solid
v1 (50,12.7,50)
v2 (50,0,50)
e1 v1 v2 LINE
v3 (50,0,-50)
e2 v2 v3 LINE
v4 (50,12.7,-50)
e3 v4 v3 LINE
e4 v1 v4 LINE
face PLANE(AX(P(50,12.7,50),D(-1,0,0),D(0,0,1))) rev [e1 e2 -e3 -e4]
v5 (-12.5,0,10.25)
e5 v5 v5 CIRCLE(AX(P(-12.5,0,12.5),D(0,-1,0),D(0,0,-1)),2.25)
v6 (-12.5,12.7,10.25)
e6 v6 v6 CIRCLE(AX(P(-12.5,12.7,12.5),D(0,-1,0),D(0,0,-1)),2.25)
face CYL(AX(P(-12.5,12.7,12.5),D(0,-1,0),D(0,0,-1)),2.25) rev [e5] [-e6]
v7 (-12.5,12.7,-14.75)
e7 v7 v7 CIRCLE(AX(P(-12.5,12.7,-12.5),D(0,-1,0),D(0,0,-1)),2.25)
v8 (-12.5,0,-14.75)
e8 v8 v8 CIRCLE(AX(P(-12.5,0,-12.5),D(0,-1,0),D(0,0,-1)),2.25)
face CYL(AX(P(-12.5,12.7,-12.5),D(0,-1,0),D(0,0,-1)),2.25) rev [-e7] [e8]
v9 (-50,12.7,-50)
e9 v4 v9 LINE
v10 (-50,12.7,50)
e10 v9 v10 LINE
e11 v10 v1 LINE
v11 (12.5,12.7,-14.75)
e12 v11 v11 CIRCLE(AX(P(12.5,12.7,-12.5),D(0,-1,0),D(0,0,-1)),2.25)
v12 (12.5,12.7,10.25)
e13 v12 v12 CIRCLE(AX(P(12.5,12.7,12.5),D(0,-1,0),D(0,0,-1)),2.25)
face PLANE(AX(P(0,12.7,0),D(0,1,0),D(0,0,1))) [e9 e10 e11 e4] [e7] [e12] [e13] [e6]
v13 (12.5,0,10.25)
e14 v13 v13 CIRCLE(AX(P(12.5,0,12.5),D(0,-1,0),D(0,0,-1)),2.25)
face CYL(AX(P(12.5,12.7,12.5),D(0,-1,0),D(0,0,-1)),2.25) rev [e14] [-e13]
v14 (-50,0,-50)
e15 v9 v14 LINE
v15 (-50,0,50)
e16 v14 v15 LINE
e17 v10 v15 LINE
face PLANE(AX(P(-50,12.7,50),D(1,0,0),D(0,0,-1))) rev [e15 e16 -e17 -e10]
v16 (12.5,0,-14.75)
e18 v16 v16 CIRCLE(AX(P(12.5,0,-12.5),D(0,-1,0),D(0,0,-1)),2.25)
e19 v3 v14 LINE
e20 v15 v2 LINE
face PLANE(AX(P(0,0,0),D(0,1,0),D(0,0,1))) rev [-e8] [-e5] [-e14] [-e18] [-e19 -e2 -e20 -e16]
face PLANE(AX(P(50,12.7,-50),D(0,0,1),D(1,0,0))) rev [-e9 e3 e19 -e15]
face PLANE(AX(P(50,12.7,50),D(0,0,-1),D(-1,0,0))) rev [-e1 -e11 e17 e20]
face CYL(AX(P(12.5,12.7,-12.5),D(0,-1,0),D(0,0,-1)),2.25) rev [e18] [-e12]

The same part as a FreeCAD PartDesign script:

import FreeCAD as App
import Part
import Sketcher

V = App.Vector
Q = App.Units.Quantity

doc = App.newDocument("Part")
body = doc.addObject("PartDesign::Body", "Body")

sketch1 = body.newObject("Sketcher::SketchObject", "Sketch")
sketch1.AttachmentSupport = (doc.getObject("XZ_Plane"), [""])
sketch1.MapMode = "FlatFace"
sketch1.addGeometry(Part.LineSegment(V(-50, -50, 0), V(-50, 50, 0)), False)
sketch1.addGeometry(Part.LineSegment(V(-50, 50, 0), V(50, 50, 0)), False)
sketch1.addGeometry(Part.LineSegment(V(50, 50, 0), V(50, -50, 0)), False)
sketch1.addGeometry(Part.LineSegment(V(50, -50, 0), V(-50, -50, 0)), False)
sketch1.addConstraint(Sketcher.Constraint("Coincident", 0, 2, 1, 1))
sketch1.addConstraint(Sketcher.Constraint("Coincident", 1, 2, 2, 1))
sketch1.addConstraint(Sketcher.Constraint("Coincident", 2, 2, 3, 1))
sketch1.addConstraint(Sketcher.Constraint("Coincident", 3, 2, 0, 1))
sketch1.addConstraint(Sketcher.Constraint("Vertical", 0))
sketch1.addConstraint(Sketcher.Constraint("Horizontal", 1))
sketch1.addConstraint(Sketcher.Constraint("Vertical", 2))
sketch1.addConstraint(Sketcher.Constraint("Horizontal", 3))
sketch1.addConstraint(Sketcher.Constraint("Symmetric", 0, 2, 2, 2, -1, 1))
sketch1.addConstraint(Sketcher.Constraint("Equal", 3, 0))
sketch1.addConstraint(Sketcher.Constraint("DistanceX", 1, 1, 1, 2, Q("100 mm")))
pad1 = body.newObject("PartDesign::Pad", "Pad")
pad1.Profile = sketch1
pad1.Length = 12.7
pad1.Reversed = True

sketch2 = body.newObject("Sketcher::SketchObject", "Sketch001")
sketch2.AttachmentSupport = (doc.getObject("XZ_Plane"), [""])
sketch2.MapMode = "FlatFace"
sketch2.addGeometry(Part.LineSegment(V(-65.199, 65.199, 0), V(-65.199, -65.199, 0)), False)
sketch2.addGeometry(Part.LineSegment(V(-65.199, -65.199, 0), V(65.199, -65.199, 0)), False)
sketch2.addGeometry(Part.LineSegment(V(65.199, -65.199, 0), V(65.199, 65.199, 0)), False)
sketch2.addGeometry(Part.LineSegment(V(65.199, 65.199, 0), V(-65.199, 65.199, 0)), False)
sketch2.addGeometry(Part.LineSegment(V(50, -50, 0), V(-50, -50, 0)), False)
sketch2.addGeometry(Part.LineSegment(V(-50, -50, 0), V(-50, 50, 0)), False)
sketch2.addGeometry(Part.LineSegment(V(-50, 50, 0), V(50, 50, 0)), False)
sketch2.addGeometry(Part.LineSegment(V(50, 50, 0), V(50, -50, 0)), False)
sketch2.addGeometry(Part.Circle(V(-12.5, -12.5, 0), V(0, 0, 1), 2.25), False)
sketch2.addGeometry(Part.Circle(V(12.5, -12.5, 0), V(0, 0, 1), 2.25), False)
sketch2.addGeometry(Part.Circle(V(-12.5, 12.5, 0), V(0, 0, 1), 2.25), False)
sketch2.addGeometry(Part.Circle(V(12.5, 12.5, 0), V(0, 0, 1), 2.25), False)
sketch2.addConstraint(Sketcher.Constraint("Coincident", 0, 2, 1, 1))
sketch2.addConstraint(Sketcher.Constraint("Coincident", 1, 2, 2, 1))
sketch2.addConstraint(Sketcher.Constraint("Coincident", 2, 2, 3, 1))
sketch2.addConstraint(Sketcher.Constraint("Coincident", 3, 2, 0, 1))
sketch2.addConstraint(Sketcher.Constraint("Coincident", 4, 2, 5, 1))
sketch2.addConstraint(Sketcher.Constraint("Coincident", 5, 2, 6, 1))
sketch2.addConstraint(Sketcher.Constraint("Coincident", 6, 2, 7, 1))
sketch2.addConstraint(Sketcher.Constraint("Coincident", 7, 2, 4, 1))
sketch2.addConstraint(Sketcher.Constraint("Vertical", 0))
sketch2.addConstraint(Sketcher.Constraint("Horizontal", 1))
sketch2.addConstraint(Sketcher.Constraint("Vertical", 2))
sketch2.addConstraint(Sketcher.Constraint("Horizontal", 3))
sketch2.addConstraint(Sketcher.Constraint("Horizontal", 4))
sketch2.addConstraint(Sketcher.Constraint("Vertical", 5))
sketch2.addConstraint(Sketcher.Constraint("Horizontal", 6))
sketch2.addConstraint(Sketcher.Constraint("Vertical", 7))
sketch2.addConstraint(Sketcher.Constraint("Equal", 8, 9))
sketch2.addConstraint(Sketcher.Constraint("Equal", 9, 10))
sketch2.addConstraint(Sketcher.Constraint("Equal", 10, 11))
sketch2.addConstraint(Sketcher.Constraint("Symmetric", 9, 3, 10, 3, -1, 1))
sketch2.addConstraint(Sketcher.Constraint("Symmetric", 8, 3, 11, 3, -1, 1))
sketch2.addConstraint(Sketcher.Constraint("Symmetric", 0, 2, 2, 2, -1, 1))
sketch2.addConstraint(Sketcher.Constraint("Symmetric", 4, 2, 6, 2, -1, 1))
sketch2.addConstraint(Sketcher.Constraint("Symmetric", 8, 3, 9, 3, -2))
sketch2.addConstraint(Sketcher.Constraint("Equal", 3, 0))
sketch2.addConstraint(Sketcher.Constraint("Equal", 6, 5))
sketch2.addConstraint(Sketcher.Constraint("Diameter", 8, Q("4.5 mm")))
sketch2.addConstraint(Sketcher.Constraint("DistanceX", 4, 2, 4, 1, Q("100 mm")))
sketch2.addConstraint(Sketcher.Constraint("DistanceX", 8, 3, 9, 3, Q("25 mm")))
sketch2.addConstraint(Sketcher.Constraint("DistanceY", 8, 3, 10, 3, Q("25 mm")))
sketch2.addConstraint(Sketcher.Constraint("DistanceX", 1, 1, 1, 2, Q("130.398 mm")))
pocket1 = body.newObject("PartDesign::Pocket", "Pocket")
pocket1.Profile = sketch2
pocket1.Length = 72.842119

doc.recompute()
